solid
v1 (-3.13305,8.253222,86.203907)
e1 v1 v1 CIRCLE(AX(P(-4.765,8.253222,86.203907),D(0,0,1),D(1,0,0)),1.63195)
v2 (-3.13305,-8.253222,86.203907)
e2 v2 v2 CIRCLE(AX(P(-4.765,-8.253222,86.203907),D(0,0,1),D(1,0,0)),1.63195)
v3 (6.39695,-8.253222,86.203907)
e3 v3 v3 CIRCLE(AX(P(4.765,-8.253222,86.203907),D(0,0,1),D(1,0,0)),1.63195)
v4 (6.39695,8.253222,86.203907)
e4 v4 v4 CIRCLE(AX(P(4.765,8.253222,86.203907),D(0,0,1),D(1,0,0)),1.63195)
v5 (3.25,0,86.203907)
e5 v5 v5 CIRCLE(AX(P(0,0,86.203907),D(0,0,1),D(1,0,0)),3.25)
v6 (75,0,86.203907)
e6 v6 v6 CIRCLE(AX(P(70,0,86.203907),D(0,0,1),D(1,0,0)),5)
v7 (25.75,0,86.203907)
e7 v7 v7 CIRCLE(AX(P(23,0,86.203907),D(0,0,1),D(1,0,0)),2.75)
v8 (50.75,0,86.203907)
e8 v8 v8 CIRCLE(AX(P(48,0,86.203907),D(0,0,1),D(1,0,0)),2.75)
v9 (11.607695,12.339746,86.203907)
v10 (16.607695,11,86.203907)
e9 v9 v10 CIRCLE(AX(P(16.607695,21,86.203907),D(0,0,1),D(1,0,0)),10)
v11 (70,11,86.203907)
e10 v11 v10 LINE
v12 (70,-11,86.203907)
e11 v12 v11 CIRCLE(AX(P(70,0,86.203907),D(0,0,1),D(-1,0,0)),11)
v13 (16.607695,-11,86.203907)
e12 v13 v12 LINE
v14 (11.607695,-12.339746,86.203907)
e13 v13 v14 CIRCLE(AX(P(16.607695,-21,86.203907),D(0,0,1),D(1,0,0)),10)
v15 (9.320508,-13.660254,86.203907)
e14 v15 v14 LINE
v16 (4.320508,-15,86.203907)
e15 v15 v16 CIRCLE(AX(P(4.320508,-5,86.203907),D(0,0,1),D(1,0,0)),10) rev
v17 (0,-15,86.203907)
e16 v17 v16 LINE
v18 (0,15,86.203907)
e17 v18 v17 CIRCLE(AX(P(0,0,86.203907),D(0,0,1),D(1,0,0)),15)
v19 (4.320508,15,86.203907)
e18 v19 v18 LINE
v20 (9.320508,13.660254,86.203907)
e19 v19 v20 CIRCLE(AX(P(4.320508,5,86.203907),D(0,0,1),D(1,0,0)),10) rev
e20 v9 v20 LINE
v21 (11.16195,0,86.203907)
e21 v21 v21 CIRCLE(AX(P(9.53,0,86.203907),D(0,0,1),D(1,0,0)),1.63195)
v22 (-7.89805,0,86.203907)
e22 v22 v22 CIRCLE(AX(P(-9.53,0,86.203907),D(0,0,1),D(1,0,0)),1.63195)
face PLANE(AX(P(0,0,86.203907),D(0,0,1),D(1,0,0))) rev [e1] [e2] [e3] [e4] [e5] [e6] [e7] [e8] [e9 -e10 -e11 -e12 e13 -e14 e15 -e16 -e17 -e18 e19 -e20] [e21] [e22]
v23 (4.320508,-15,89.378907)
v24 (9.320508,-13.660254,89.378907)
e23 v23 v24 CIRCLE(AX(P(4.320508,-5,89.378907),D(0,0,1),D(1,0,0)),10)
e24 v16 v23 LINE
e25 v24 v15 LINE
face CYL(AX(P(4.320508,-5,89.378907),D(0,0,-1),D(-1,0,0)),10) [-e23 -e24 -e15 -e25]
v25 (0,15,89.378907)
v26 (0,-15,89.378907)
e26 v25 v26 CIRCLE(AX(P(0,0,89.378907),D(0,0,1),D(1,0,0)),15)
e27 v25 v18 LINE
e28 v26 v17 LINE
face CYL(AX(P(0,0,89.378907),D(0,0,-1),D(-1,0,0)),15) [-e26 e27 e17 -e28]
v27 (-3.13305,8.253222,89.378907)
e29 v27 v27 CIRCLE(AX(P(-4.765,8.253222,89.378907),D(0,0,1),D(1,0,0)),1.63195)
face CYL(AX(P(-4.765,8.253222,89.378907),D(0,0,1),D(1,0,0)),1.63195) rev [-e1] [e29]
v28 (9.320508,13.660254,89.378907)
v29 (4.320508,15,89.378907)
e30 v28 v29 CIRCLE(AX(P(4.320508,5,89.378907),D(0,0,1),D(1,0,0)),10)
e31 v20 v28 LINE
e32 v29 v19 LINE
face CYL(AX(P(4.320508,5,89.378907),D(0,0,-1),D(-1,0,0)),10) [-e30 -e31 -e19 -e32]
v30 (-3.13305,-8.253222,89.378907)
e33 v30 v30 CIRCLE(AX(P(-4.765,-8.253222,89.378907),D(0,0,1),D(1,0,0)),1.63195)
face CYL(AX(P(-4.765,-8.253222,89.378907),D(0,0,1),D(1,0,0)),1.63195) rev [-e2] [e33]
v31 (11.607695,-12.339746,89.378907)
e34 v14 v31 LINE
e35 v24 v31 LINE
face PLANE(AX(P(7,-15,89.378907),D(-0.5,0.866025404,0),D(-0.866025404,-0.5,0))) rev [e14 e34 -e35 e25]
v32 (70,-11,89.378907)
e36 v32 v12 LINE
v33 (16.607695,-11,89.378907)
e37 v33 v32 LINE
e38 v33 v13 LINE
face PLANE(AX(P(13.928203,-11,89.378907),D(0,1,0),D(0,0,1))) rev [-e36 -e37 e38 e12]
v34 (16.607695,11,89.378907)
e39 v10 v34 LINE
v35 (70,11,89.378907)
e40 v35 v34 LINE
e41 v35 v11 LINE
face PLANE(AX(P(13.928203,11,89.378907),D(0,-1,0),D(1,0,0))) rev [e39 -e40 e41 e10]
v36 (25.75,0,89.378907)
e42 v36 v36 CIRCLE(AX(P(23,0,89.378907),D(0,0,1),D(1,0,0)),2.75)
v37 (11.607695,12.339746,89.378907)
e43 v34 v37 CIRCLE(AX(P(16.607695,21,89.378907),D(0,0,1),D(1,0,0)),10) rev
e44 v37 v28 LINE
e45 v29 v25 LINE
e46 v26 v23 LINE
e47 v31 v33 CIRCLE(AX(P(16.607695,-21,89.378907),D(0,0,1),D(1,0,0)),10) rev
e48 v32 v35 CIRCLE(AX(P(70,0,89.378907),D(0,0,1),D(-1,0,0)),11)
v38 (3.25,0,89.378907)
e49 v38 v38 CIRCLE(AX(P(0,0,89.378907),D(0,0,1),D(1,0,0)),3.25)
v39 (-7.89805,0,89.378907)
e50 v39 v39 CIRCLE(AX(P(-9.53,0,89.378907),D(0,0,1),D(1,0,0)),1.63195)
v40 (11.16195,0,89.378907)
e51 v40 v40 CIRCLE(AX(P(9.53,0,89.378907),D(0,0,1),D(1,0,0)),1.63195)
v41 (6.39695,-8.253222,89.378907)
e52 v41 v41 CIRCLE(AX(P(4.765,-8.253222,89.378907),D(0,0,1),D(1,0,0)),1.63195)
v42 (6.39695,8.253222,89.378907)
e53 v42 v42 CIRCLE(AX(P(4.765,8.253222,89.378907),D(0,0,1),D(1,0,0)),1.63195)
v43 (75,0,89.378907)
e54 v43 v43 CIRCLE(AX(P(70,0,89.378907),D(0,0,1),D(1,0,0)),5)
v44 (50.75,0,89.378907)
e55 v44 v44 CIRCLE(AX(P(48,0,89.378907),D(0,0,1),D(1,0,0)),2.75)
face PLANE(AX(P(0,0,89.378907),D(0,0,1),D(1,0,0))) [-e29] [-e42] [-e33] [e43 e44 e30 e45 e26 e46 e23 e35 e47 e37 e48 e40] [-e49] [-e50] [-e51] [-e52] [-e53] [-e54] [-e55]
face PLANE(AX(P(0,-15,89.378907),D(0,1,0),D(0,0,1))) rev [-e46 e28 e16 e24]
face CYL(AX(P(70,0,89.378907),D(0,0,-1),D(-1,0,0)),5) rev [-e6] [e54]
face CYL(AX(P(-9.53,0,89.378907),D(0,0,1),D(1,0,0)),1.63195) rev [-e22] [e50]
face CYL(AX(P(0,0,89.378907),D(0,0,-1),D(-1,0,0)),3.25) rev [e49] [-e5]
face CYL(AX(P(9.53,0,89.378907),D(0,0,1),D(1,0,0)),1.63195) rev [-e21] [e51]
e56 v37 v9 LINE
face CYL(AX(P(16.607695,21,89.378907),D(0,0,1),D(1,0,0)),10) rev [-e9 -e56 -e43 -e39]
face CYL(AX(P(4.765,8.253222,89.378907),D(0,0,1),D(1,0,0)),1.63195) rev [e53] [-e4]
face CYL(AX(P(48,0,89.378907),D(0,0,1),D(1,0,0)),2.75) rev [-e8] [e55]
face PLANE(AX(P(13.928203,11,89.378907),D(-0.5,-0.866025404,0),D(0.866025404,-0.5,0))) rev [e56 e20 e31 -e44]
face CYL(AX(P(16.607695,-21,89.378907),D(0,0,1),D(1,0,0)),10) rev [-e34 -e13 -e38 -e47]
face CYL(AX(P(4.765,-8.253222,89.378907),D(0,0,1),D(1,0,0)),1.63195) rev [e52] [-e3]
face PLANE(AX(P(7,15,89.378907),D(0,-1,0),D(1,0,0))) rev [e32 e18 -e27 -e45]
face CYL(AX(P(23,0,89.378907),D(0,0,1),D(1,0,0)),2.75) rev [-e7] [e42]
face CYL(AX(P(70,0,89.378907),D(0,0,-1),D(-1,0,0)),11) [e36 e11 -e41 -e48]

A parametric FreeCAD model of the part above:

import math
import FreeCAD as App
import Part
import Sketcher
from FreeCAD import Vector
Q = App.Units.Quantity


def edges_at(feature, points):
    """Names of the edges that pass closest to the given points."""
    edges = feature.Shape.Edges
    near = lambda p: min(range(len(edges)), key=lambda i: edges[i].distToShape(Part.Vertex(*p))[0])
    return sorted({f"Edge{near(p) + 1}" for p in points})

doc = App.newDocument("Part")
body = doc.addObject("PartDesign::Body", "Body")

# Sketch on XY plane
sketch1 = body.newObject("Sketcher::SketchObject", "Sketch")
sketch1.AttachmentSupport = (doc.getObject("XY_Plane"), [""])
sketch1.MapMode = "FlatFace"
sketch1.AttachmentOffset = App.Placement(Vector(0, 0, 86.203907), App.Rotation())
sketch1.addGeometry([
    Part.LineSegment(Vector(0, -15, 0), Vector(7, -15, 0)),  # 0
    Part.LineSegment(Vector(7, -15, 0), Vector(13.928203, -11, 0)),  # 1
    Part.LineSegment(Vector(13.928203, -11, 0), Vector(70, -11, 0)),  # 2
    Part.ArcOfCircle(Part.Circle(Vector(70, 0, 0), Vector(0, 0, 1), 11), math.radians(-90), math.radians(90)),  # 3
    Part.LineSegment(Vector(70, 11, 0), Vector(13.928203, 11, 0)),  # 4
    Part.LineSegment(Vector(13.928203, 11, 0), Vector(7, 15, 0)),  # 5
    Part.LineSegment(Vector(7, 15, 0), Vector(0, 15, 0)),  # 6
    Part.ArcOfCircle(Part.Circle(Vector(0, 0, 0), Vector(0, 0, 1), 15), math.radians(90), math.radians(270)),  # 7
    Part.Circle(Vector(0, 0, 0), Vector(0, 0, 1), 3.25),  # 8
    Part.Circle(Vector(70, 0, 0), Vector(0, 0, 1), 5),  # 9
], False)
sketch1.addConstraint([
    Sketcher.Constraint("Coincident", 0, 2, 1, 1),
    Sketcher.Constraint("Coincident", 1, 2, 2, 1),
    Sketcher.Constraint("Tangent", 2, 2, 3, 1),
    Sketcher.Constraint("Tangent", 3, 2, 4, 1),
    Sketcher.Constraint("Coincident", 4, 2, 5, 1),
    Sketcher.Constraint("Coincident", 5, 2, 6, 1),
    Sketcher.Constraint("Tangent", 6, 2, 7, 1),
    Sketcher.Constraint("Tangent", 7, 2, 0, 1),
    Sketcher.Constraint("Horizontal", 0),
    Sketcher.Constraint("Horizontal", 2),
    Sketcher.Constraint("Horizontal", 4),
    Sketcher.Constraint("Horizontal", 6),
    Sketcher.Constraint("Coincident", 7, 3, -1, 1),
    Sketcher.Constraint("Coincident", 8, 3, -1, 1),
    Sketcher.Constraint("Coincident", 9, 3, 3, 3),
    Sketcher.Constraint("Symmetric", 1, 2, 4, 2, -1),
    Sketcher.Constraint("Vertical", 0, 2, 5, 2),
    Sketcher.Constraint("Diameter", 9, Q("10 mm")),
    Sketcher.Constraint("Radius", 3, Q("11 mm")),
    Sketcher.Constraint("Radius", 7, Q("15 mm")),
    Sketcher.Constraint("Diameter", 8, Q("6.5 mm")),
    Sketcher.Constraint("DistanceX", 0, 1, 0, 2, Q("7 mm")),
    Sketcher.Constraint("Angle", 1, Q("30 deg")),
    Sketcher.Constraint("DistanceX", -1, 1, 3, 3, Q("70 mm")),
])
pad1 = body.newObject("PartDesign::Pad", "Pad")
pad1.Profile = sketch1
pad1.Length = 3.175

# Sketch on XY plane
sketch2 = body.newObject("Sketcher::SketchObject", "Sketch001")
sketch2.AttachmentSupport = (doc.getObject("XY_Plane"), [""])
sketch2.MapMode = "FlatFace"
sketch2.AttachmentOffset = App.Placement(Vector(0, 0, 89.378907), App.Rotation())
sketch2.addGeometry([
    Part.Circle(Vector(9.53, 0, 0), Vector(0, 0, 1), 1.63195),  # 0
    Part.Circle(Vector(4.765, -8.253222, 0), Vector(0, 0, 1), 1.63195),  # 1
    Part.Circle(Vector(-4.765, -8.253222, 0), Vector(0, 0, 1), 1.63195),  # 2
    Part.Circle(Vector(-9.53, 0, 0), Vector(0, 0, 1), 1.63195),  # 3
    Part.Circle(Vector(-4.765, 8.253222, 0), Vector(0, 0, 1), 1.63195),  # 4
    Part.Circle(Vector(4.765, 8.253222, 0), Vector(0, 0, 1), 1.63195),  # 5
], False)
sketch2.addConstraint([
    Sketcher.Constraint("Equal", 0, 1),
    Sketcher.Constraint("Equal", 1, 2),
    Sketcher.Constraint("Equal", 2, 3),
    Sketcher.Constraint("Equal", 3, 4),
    Sketcher.Constraint("Equal", 4, 5),
    Sketcher.Constraint("Symmetric", 0, 3, 3, 3, -1, 1),
    Sketcher.Constraint("Symmetric", 1, 3, 4, 3, -1, 1),
    Sketcher.Constraint("Symmetric", 2, 3, 5, 3, -1, 1),
    Sketcher.Constraint("Symmetric", 1, 3, 2, 3, -2),
    Sketcher.Constraint("PointOnObject", 0, 3, -1),
    Sketcher.Constraint("Diameter", 0, Q("3.2639 mm")),
    Sketcher.Constraint("DistanceX", -1, 1, 0, 3, Q("9.53 mm")),
    Sketcher.Constraint("DistanceX", 2, 3, 1, 3, Q("9.53 mm")),
    Sketcher.Constraint("DistanceY", 1, 3, -1, 1, Q("8.253222 mm")),
])
doc.recompute()
hole = body.newObject("PartDesign::Hole", "Hole")
hole.Profile = sketch2
hole.ThreadType = "None"
hole.Diameter = 3.2639
hole.DepthType = "Dimension"
hole.Depth = 10
hole.DrillPoint = "Angled"
hole.DrillPointAngle = 118

# Sketch on XY plane
sketch3 = body.newObject("Sketcher::SketchObject", "Sketch002")
sketch3.AttachmentSupport = (doc.getObject("XY_Plane"), [""])
sketch3.MapMode = "FlatFace"
sketch3.AttachmentOffset = App.Placement(Vector(0, 0, 89.378907), App.Rotation())
sketch3.addGeometry([
    Part.Circle(Vector(23, 0, 0), Vector(0, 0, 1), 2.75),
    Part.Circle(Vector(48, 0, 0), Vector(0, 0, 1), 2.75),
], False)
sketch3.addConstraint([
    Sketcher.Constraint("Equal", 0, 1),
    Sketcher.Constraint("PointOnObject", 0, 3, -1),
    Sketcher.Constraint("PointOnObject", 1, 3, -1),
    Sketcher.Constraint("Diameter", 0, Q("5.5 mm")),
    Sketcher.Constraint("DistanceX", -1, 1, 0, 3, Q("23 mm")),
    Sketcher.Constraint("DistanceX", -1, 1, 1, 3, Q("48 mm")),
])
doc.recompute()
hole2 = body.newObject("PartDesign::Hole", "Hole001")
hole2.Profile = sketch3
hole2.ThreadType = "None"
hole2.Diameter = 5.5
hole2.DepthType = "Dimension"
hole2.Depth = 6
hole2.DrillPoint = "Angled"
hole2.DrillPointAngle = 118
doc.recompute()

fillet = body.newObject("PartDesign::Fillet", "Fillet")
fillet.Base = (hole2, edges_at(hole2, [
    (7, 15, 87.791),
    (13.928, 11, 87.791),
    (13.928, -11, 87.791),
    (7, -15, 87.791),
]))
fillet.Radius = 10

doc.recompute()
